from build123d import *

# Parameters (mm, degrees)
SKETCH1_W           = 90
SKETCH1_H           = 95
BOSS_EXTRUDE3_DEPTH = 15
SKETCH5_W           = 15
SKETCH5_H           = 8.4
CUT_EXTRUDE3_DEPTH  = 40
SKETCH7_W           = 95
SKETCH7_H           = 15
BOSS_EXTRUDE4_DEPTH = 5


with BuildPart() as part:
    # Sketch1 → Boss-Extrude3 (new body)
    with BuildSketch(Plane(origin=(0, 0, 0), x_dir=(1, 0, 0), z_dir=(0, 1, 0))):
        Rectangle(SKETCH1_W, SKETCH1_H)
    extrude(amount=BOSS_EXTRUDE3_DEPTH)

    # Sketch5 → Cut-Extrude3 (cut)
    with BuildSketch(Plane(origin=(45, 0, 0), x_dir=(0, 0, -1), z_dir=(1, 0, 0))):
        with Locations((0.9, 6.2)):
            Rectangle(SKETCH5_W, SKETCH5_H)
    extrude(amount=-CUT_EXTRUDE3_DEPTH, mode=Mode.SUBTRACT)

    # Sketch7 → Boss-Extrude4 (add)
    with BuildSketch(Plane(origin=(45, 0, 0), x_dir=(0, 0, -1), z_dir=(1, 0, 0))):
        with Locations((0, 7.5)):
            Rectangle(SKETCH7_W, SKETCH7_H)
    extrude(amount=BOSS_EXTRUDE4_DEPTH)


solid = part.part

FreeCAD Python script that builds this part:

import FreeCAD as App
import Part
import Sketcher
from FreeCAD import Vector

doc = App.newDocument("Part")
params = doc.addObject("Spreadsheet::Sheet", "Params")
for row, (alias, value) in enumerate([
    ("sketch1_width", "90 mm"),
    ("sketch1_height", "95 mm"),
    ("pad1_length", "15 mm"),
    ("sketch2_height", "15 mm"),
    ("sketch2_width", "8.4 mm"),
    ("pocket1_length", "40 mm"),
    ("sketch3_width", "15 mm"),
    ("sketch3_height", "95 mm"),
    ("pad2_length", "5 mm"),
], start=1):
    params.set(f"A{row}", alias)
    params.set(f"B{row}", "=" + value)
    params.setAlias(f"B{row}", alias)

body = doc.addObject("PartDesign::Body", "Body")

sketch1 = body.newObject("Sketcher::SketchObject", "Sketch")
sketch1.AttachmentSupport = (doc.getObject("XZ_Plane"), [""])
sketch1.MapMode = "FlatFace"
sketch1.addGeometry(Part.LineSegment(Vector(-45, -48, 0), Vector(-45, 48, 0)), False)
sketch1.addGeometry(Part.LineSegment(Vector(-45, 48, 0), Vector(45, 48, 0)), False)
sketch1.addGeometry(Part.LineSegment(Vector(45, 48, 0), Vector(45, -48, 0)), False)
sketch1.addGeometry(Part.LineSegment(Vector(45, -48, 0), Vector(-45, -48, 0)), False)
sketch1.addConstraint(Sketcher.Constraint("Coincident", 0, 2, 1, 1))
sketch1.addConstraint(Sketcher.Constraint("Coincident", 1, 2, 2, 1))
sketch1.addConstraint(Sketcher.Constraint("Coincident", 2, 2, 3, 1))
sketch1.addConstraint(Sketcher.Constraint("Coincident", 3, 2, 0, 1))
sketch1.addConstraint(Sketcher.Constraint("Vertical", 0))
sketch1.addConstraint(Sketcher.Constraint("Horizontal", 1))
sketch1.addConstraint(Sketcher.Constraint("Vertical", 2))
sketch1.addConstraint(Sketcher.Constraint("Horizontal", 3))
sketch1.addConstraint(Sketcher.Constraint("Symmetric", 0, 2, 2, 2, -1, 1))
sketch1.addConstraint(Sketcher.Constraint("DistanceX", 1, 1, 1, 2, 90.0))
sketch1.addConstraint(Sketcher.Constraint("DistanceY", 0, 1, 0, 2, 95.0))
sketch1.setExpression("Constraints[9]", "Params.sketch1_width")
sketch1.setExpression("Constraints[10]", "Params.sketch1_height")
pad1 = body.newObject("PartDesign::Pad", "Pad")
pad1.Profile = sketch1
pad1.setExpression("Length", "Params.pad1_length")
pad1.Reversed = True

sketch2 = body.newObject("Sketcher::SketchObject", "Sketch001")
sketch2.AttachmentSupport = (doc.getObject("YZ_Plane"), [""])
sketch2.MapMode = "FlatFace"
sketch2.AttachmentOffset = App.Placement(Vector(0, 0, 45), App.Rotation())
sketch2.addGeometry(Part.LineSegment(Vector(10, 7, 0), Vector(2, 7, 0)), False)
sketch2.addGeometry(Part.LineSegment(Vector(2, 7, 0), Vector(2, -8, 0)), False)
sketch2.addGeometry(Part.LineSegment(Vector(2, -8, 0), Vector(10, -8, 0)), False)
sketch2.addGeometry(Part.LineSegment(Vector(10, -8, 0), Vector(10, 7, 0)), False)
sketch2.addConstraint(Sketcher.Constraint("Coincident", 0, 2, 1, 1))
sketch2.addConstraint(Sketcher.Constraint("Coincident", 1, 2, 2, 1))
sketch2.addConstraint(Sketcher.Constraint("Coincident", 2, 2, 3, 1))
sketch2.addConstraint(Sketcher.Constraint("Coincident", 3, 2, 0, 1))
sketch2.addConstraint(Sketcher.Constraint("Horizontal", 0))
sketch2.addConstraint(Sketcher.Constraint("Vertical", 1))
sketch2.addConstraint(Sketcher.Constraint("Horizontal", 2))
sketch2.addConstraint(Sketcher.Constraint("Vertical", 3))
sketch2.addConstraint(Sketcher.Constraint("DistanceY", 1, 2, 1, 1, 15.0))
sketch2.addConstraint(Sketcher.Constraint("DistanceX", 0, 2, 0, 1, 8.4))
sketch2.addConstraint(Sketcher.Constraint("DistanceX", -1, 1, 0, 2, 2.0))
sketch2.addConstraint(Sketcher.Constraint("DistanceY", -1, 1, 0, 2, 6.6))
sketch2.setExpression("Constraints[8]", "Params.sketch2_height")
sketch2.setExpression("Constraints[9]", "Params.sketch2_width")
pocket1 = body.newObject("PartDesign::Pocket", "Pocket")
pocket1.Profile = sketch2
pocket1.setExpression("Length", "Params.pocket1_length")

sketch3 = body.newObject("Sketcher::SketchObject", "Sketch002")
sketch3.AttachmentSupport = (doc.getObject("YZ_Plane"), [""])
sketch3.MapMode = "FlatFace"
sketch3.AttachmentOffset = App.Placement(Vector(0, 0, 45), App.Rotation())
sketch3.addGeometry(Part.LineSegment(Vector(15, 48, 0), Vector(0, 48, 0)), False)
sketch3.addGeometry(Part.LineSegment(Vector(0, 48, 0), Vector(0, -48, 0)), False)
sketch3.addGeometry(Part.LineSegment(Vector(0, -48, 0), Vector(15, -48, 0)), False)
sketch3.addGeometry(Part.LineSegment(Vector(15, -48, 0), Vector(15, 48, 0)), False)
sketch3.addConstraint(Sketcher.Constraint("Coincident", 0, 2, 1, 1))
sketch3.addConstraint(Sketcher.Constraint("Coincident", 1, 2, 2, 1))
sketch3.addConstraint(Sketcher.Constraint("Coincident", 2, 2, 3, 1))
sketch3.addConstraint(Sketcher.Constraint("Coincident", 3, 2, 0, 1))
sketch3.addConstraint(Sketcher.Constraint("Horizontal", 0))
sketch3.addConstraint(Sketcher.Constraint("Vertical", 1))
sketch3.addConstraint(Sketcher.Constraint("Horizontal", 2))
sketch3.addConstraint(Sketcher.Constraint("Vertical", 3))
sketch3.addConstraint(Sketcher.Constraint("Symmetric", 0, 2, 1, 2, -1, 1))
sketch3.addConstraint(Sketcher.Constraint("DistanceX", 0, 2, 0, 1, 15.0))
sketch3.addConstraint(Sketcher.Constraint("DistanceY", 1, 2, 1, 1, 95.0))
sketch3.setExpression("Constraints[9]", "Params.sketch3_width")
sketch3.setExpression("Constraints[10]", "Params.sketch3_height")
pad2 = body.newObject("PartDesign::Pad", "Pad001")
pad2.Profile = sketch3
pad2.setExpression("Length", "Params.pad2_length")

doc.recompute()
